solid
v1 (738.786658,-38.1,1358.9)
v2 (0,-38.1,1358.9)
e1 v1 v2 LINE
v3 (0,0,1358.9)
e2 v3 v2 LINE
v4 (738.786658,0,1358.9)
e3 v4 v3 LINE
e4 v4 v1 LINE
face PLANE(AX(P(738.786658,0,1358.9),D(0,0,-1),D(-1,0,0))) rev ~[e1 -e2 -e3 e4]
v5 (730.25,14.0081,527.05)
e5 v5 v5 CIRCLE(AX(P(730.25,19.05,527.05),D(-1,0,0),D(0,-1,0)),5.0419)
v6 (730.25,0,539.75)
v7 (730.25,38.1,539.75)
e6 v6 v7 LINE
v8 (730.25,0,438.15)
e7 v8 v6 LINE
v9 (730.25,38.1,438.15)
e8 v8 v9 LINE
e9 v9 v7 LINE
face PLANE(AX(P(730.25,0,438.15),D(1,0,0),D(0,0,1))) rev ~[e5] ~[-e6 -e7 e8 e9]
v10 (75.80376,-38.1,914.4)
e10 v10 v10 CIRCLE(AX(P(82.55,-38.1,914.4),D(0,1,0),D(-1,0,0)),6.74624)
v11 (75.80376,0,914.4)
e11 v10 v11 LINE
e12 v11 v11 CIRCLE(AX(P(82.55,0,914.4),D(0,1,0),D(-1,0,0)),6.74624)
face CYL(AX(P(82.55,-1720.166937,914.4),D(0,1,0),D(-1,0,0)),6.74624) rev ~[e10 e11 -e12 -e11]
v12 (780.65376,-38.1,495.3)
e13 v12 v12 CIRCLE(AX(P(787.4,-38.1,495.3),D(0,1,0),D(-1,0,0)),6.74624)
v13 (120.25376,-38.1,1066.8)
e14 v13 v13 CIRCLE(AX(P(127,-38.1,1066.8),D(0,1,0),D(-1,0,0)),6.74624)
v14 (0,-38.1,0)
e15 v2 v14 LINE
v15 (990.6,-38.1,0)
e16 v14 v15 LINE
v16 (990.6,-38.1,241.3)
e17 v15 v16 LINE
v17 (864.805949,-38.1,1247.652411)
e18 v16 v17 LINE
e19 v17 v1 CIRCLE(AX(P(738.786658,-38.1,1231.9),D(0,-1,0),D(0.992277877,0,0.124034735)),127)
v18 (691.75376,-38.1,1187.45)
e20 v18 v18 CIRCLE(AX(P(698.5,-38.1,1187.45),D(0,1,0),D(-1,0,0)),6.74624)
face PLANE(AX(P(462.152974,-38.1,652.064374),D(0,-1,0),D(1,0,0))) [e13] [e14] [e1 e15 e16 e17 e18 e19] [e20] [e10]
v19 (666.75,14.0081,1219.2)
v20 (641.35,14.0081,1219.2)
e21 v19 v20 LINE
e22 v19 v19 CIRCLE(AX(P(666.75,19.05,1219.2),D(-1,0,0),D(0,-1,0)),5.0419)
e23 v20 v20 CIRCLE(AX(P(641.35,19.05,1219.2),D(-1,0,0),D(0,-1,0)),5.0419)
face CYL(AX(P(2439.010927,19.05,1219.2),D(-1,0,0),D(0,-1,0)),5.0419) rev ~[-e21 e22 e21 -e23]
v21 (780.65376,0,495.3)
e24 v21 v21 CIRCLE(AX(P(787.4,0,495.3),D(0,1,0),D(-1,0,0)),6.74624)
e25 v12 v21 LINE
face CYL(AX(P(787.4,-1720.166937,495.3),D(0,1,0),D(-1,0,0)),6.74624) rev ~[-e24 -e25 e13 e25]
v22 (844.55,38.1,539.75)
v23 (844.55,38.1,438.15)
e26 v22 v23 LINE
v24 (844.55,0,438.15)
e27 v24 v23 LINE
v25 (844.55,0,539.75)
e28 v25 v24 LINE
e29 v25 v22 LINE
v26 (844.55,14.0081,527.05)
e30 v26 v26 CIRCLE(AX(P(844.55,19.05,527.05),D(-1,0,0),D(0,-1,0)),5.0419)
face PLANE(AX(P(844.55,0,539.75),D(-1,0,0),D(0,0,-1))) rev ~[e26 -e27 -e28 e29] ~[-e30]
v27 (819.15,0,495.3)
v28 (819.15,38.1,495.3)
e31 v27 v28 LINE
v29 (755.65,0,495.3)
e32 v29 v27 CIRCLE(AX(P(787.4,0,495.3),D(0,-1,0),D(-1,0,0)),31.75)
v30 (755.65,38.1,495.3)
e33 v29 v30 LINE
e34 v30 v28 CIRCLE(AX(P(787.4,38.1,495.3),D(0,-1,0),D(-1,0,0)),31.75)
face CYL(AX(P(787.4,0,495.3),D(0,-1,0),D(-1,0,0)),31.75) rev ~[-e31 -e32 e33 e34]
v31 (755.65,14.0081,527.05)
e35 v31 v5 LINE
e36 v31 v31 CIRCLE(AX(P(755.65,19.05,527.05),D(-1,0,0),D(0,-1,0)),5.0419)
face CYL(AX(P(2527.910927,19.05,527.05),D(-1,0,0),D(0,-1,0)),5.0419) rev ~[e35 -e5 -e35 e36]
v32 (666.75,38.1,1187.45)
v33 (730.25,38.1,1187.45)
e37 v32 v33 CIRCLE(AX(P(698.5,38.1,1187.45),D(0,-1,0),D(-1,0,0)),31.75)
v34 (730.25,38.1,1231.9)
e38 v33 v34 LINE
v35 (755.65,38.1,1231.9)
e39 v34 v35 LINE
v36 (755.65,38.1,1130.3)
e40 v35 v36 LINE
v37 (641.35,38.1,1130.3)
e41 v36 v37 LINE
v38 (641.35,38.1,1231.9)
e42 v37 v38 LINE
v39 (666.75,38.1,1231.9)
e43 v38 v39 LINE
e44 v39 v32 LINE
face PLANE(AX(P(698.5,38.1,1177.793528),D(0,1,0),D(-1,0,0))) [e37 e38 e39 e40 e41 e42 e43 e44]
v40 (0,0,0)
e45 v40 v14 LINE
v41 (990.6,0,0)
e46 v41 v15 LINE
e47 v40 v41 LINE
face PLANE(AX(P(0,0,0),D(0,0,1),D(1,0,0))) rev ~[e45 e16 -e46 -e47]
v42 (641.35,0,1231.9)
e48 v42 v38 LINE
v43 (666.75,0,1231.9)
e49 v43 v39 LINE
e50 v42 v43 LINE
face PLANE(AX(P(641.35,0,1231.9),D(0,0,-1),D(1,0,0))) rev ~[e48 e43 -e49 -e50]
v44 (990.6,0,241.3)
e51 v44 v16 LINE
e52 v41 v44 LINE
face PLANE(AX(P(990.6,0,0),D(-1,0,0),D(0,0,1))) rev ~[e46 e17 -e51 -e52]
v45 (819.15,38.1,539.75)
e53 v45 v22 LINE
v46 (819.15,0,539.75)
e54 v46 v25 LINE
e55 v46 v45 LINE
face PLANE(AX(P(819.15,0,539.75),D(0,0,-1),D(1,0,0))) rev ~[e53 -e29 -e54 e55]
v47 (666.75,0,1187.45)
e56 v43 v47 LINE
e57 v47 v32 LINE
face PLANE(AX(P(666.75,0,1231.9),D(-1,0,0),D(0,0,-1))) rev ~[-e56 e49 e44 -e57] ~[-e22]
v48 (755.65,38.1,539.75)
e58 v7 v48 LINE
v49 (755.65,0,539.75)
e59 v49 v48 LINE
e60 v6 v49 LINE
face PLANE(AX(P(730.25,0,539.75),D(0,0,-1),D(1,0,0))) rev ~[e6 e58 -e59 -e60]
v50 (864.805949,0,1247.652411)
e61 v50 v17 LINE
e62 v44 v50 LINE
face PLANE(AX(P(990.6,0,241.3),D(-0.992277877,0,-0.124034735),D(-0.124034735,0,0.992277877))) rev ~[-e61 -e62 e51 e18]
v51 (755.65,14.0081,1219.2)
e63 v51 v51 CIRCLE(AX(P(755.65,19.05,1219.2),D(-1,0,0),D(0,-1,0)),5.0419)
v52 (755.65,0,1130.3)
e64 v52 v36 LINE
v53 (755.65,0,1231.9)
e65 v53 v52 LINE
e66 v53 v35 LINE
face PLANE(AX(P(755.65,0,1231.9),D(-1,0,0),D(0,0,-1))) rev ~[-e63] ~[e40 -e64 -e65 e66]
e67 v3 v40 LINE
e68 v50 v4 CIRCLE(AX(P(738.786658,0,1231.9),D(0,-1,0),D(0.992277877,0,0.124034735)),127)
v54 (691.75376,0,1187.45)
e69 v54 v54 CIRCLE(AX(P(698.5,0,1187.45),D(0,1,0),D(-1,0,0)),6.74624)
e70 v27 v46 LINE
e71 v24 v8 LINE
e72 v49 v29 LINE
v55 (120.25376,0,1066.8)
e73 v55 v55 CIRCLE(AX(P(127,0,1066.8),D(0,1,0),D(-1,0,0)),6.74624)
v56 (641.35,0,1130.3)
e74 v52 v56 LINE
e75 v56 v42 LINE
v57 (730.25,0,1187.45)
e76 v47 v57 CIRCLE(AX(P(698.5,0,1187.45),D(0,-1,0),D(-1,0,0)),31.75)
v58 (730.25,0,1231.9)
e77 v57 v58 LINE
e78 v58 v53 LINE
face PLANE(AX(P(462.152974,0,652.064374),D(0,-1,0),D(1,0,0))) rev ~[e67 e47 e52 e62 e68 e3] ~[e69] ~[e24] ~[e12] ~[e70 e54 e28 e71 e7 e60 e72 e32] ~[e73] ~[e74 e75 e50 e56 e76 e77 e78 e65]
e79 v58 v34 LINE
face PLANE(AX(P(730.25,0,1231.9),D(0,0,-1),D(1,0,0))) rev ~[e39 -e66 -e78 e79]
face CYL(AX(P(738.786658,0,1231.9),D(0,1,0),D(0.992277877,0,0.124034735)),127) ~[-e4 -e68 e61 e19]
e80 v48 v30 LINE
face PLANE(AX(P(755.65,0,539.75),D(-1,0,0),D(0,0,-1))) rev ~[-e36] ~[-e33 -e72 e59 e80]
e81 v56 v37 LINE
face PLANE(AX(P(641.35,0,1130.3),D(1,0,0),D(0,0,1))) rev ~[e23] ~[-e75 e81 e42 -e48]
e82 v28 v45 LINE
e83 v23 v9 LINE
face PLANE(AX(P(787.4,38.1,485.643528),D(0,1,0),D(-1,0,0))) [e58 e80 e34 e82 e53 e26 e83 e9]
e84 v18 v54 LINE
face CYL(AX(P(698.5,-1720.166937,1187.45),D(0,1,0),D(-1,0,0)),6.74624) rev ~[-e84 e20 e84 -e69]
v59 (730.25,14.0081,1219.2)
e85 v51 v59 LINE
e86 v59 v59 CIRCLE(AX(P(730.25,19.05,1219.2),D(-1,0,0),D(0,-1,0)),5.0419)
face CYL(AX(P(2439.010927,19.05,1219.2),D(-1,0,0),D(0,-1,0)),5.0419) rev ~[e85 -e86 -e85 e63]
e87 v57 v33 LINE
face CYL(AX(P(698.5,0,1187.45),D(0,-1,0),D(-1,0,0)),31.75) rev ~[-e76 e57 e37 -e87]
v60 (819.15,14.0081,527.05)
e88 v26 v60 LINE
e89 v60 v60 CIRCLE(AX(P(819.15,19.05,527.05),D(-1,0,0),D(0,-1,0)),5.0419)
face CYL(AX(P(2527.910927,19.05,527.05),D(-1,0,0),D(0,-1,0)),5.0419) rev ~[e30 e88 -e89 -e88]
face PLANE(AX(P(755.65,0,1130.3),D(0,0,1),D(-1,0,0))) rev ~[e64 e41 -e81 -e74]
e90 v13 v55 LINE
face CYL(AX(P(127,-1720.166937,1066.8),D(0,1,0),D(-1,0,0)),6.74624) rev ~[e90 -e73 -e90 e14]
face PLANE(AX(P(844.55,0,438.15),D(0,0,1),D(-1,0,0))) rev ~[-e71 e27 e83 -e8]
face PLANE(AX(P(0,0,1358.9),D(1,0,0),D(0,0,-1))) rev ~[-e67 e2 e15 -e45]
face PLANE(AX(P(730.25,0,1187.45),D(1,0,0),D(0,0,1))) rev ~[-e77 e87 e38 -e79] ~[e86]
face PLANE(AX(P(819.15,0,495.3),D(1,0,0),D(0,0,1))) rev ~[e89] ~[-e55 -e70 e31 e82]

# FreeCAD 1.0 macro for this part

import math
import FreeCAD as App
import Part
import Sketcher
from FreeCAD import Vector
Q = App.Units.Quantity

doc = App.newDocument("Part")
body = doc.addObject("PartDesign::Body", "Body")

# Sketch on XZ plane
sketch1 = doc.addObject("Sketcher::SketchObject", "Sketch")
body.addObject(sketch1)
sketch1.AttachmentSupport = (doc.XZ_Plane, [""])
sketch1.MapMode = "FlatFace"
sketch1.addGeometry([
    Part.LineSegment(Vector(0, 1359, 0), Vector(0, 0, 0)),  # 0
    Part.LineSegment(Vector(0, 0, 0), Vector(991, 0, 0)),  # 1
    Part.LineSegment(Vector(991, 0, 0), Vector(991, 241, 0)),  # 2
    Part.LineSegment(Vector(991, 241, 0), Vector(865, 1248, 0)),  # 3
    Part.ArcOfCircle(Part.Circle(Vector(739, 1232, 0), Vector(0, 0, 1), 127), math.radians(7), math.radians(90)),  # 4
    Part.LineSegment(Vector(739, 1359, 0), Vector(0, 1359, 0)),  # 5
], False)
sketch1.addConstraint([
    Sketcher.Constraint("Coincident", 0, 2, 1, 1),
    Sketcher.Constraint("Coincident", 1, 2, 2, 1),
    Sketcher.Constraint("Coincident", 2, 2, 3, 1),
    Sketcher.Constraint("Tangent", 3, 2, 4, 1),
    Sketcher.Constraint("Tangent", 4, 2, 5, 1),
    Sketcher.Constraint("Coincident", 5, 2, 0, 1),
    Sketcher.Constraint("Vertical", 0),
    Sketcher.Constraint("Horizontal", 1),
    Sketcher.Constraint("Vertical", 2),
    Sketcher.Constraint("Horizontal", 5),
    Sketcher.Constraint("Coincident", 0, 2, -1, 1),
    Sketcher.Constraint("Radius", 4, Q("5 in")),
    Sketcher.Constraint("DistanceX", 1, 1, 1, 2, Q("39 in")),
    Sketcher.Constraint("DistanceY", 0, 2, 0, 1, Q("53.5 in")),
    Sketcher.Constraint("DistanceY", 2, 1, 2, 2, Q("9.5 in")),
    Sketcher.Constraint("DistanceX", 5, 2, 5, 1, 738.786658),
])
pad1 = doc.addObject("PartDesign::Pad", "Pad")
body.addObject(pad1)
pad1.Profile = sketch1
pad1.Length = Q("1.5 in")

# Sketch on XZ plane
sketch2 = doc.addObject("Sketcher::SketchObject", "Sketch001")
body.addObject(sketch2)
sketch2.AttachmentSupport = (doc.XZ_Plane, [""])
sketch2.MapMode = "FlatFace"
sketch2.AttachmentOffset = App.Placement(Vector(0, 0, 1.5 * 25.4), App.Rotation())
sketch2.addGeometry([
    Part.Circle(Vector(698, 1187, 0), Vector(0, 0, 1), 7),
    Part.Circle(Vector(83, 914, 0), Vector(0, 0, 1), 7),
    Part.Circle(Vector(127, 1067, 0), Vector(0, 0, 1), 7),
    Part.Circle(Vector(787, 495, 0), Vector(0, 0, 1), 7),
], False)
sketch2.addConstraint([
    Sketcher.Constraint("Equal", 0, 1),
    Sketcher.Constraint("Equal", 1, 2),
    Sketcher.Constraint("Equal", 2, 3),
    Sketcher.Constraint("DistanceY", -1, 1, 1, 3, Q("36 in")),
    Sketcher.Constraint("DistanceX", -1, 1, 2, 3, Q("5 in")),
    Sketcher.Constraint("DistanceY", -1, 1, 2, 3, Q("42 in")),
    Sketcher.Constraint("DistanceX", -1, 1, 3, 3, Q("31 in")),
    Sketcher.Constraint("Diameter", 0, Q("0.5312 in")),
    Sketcher.Constraint("DistanceX", -1, 1, 0, 3, Q("27.5 in")),
    Sketcher.Constraint("DistanceY", -1, 1, 3, 3, Q("19.5 in")),
    Sketcher.Constraint("DistanceY", -1, 1, 0, 3, Q("46.75 in")),
    Sketcher.Constraint("DistanceX", -1, 1, 1, 3, Q("3.25 in")),
])
doc.recompute()
hole = doc.addObject("PartDesign::Hole", "Hole")
body.addObject(hole)
hole.Profile = sketch2
hole.ThreadType = "None"
hole.Diameter = Q("0.5312 in")
hole.DepthType = "ThroughAll"

# Sketch on XZ plane
sketch3 = doc.addObject("Sketcher::SketchObject", "Sketch002")
body.addObject(sketch3)
sketch3.AttachmentSupport = (doc.XZ_Plane, [""])
sketch3.MapMode = "FlatFace"
sketch3.addGeometry([
    Part.ArcOfCircle(Part.Circle(Vector(698, 1187, 0), Vector(0, 0, 1), 32), math.radians(180), math.radians(360)),  # 0
    Part.LineSegment(Vector(730, 1187, 0), Vector(730, 1232, 0)),  # 1
    Part.LineSegment(Vector(730, 1232, 0), Vector(756, 1232, 0)),  # 2
    Part.LineSegment(Vector(756, 1232, 0), Vector(756, 1130, 0)),  # 3
    Part.LineSegment(Vector(756, 1130, 0), Vector(641, 1130, 0)),  # 4
    Part.LineSegment(Vector(641, 1130, 0), Vector(641, 1232, 0)),  # 5
    Part.LineSegment(Vector(641, 1232, 0), Vector(667, 1232, 0)),  # 6
    Part.LineSegment(Vector(667, 1232, 0), Vector(667, 1187, 0)),  # 7
], False)
sketch3.addConstraint([
    Sketcher.Constraint("Tangent", 0, 2, 1, 1),
    Sketcher.Constraint("Coincident", 1, 2, 2, 1),
    Sketcher.Constraint("Coincident", 2, 2, 3, 1),
    Sketcher.Constraint("Coincident", 3, 2, 4, 1),
    Sketcher.Constraint("Coincident", 4, 2, 5, 1),
    Sketcher.Constraint("Coincident", 5, 2, 6, 1),
    Sketcher.Constraint("Coincident", 6, 2, 7, 1),
    Sketcher.Constraint("Tangent", 7, 2, 0, 1),
    Sketcher.Constraint("Vertical", 1),
    Sketcher.Constraint("Horizontal", 2),
    Sketcher.Constraint("Vertical", 3),
    Sketcher.Constraint("Horizontal", 4),
    Sketcher.Constraint("Vertical", 5),
    Sketcher.Constraint("Horizontal", 6),
    Sketcher.Constraint("Vertical", 7),
    Sketcher.Constraint("Horizontal", 2, 2, 5, 2),
    Sketcher.Constraint("Equal", 2, 6),
    Sketcher.Constraint("DistanceX", 2, 1, 2, 2, Q("1 in")),
    Sketcher.Constraint("DistanceY", 3, 2, 3, 1, Q("4 in")),
    Sketcher.Constraint("Radius", 0, Q("1.25 in")),
    Sketcher.Constraint("DistanceY", 1, 1, 1, 2, Q("1.75 in")),
    Sketcher.Constraint("DistanceX", -1, 1, 0, 3, Q("27.5 in")),
    Sketcher.Constraint("DistanceY", -1, 1, 1, 2, Q("48.5 in")),
])
pad2 = doc.addObject("PartDesign::Pad", "Pad001")
body.addObject(pad2)
pad2.Profile = sketch3
pad2.Length = Q("1.5 in")
pad2.Reversed = True

# Sketch on XZ plane
sketch4 = doc.addObject("Sketcher::SketchObject", "Sketch003")
body.addObject(sketch4)
sketch4.AttachmentSupport = (doc.XZ_Plane, [""])
sketch4.MapMode = "FlatFace"
sketch4.addGeometry([
    Part.ArcOfCircle(Part.Circle(Vector(787, 495, 0), Vector(0, 0, 1), 32), math.radians(180), math.radians(360)),  # 0
    Part.LineSegment(Vector(819, 495, 0), Vector(819, 540, 0)),  # 1
    Part.LineSegment(Vector(819, 540, 0), Vector(845, 540, 0)),  # 2
    Part.LineSegment(Vector(845, 540, 0), Vector(845, 438, 0)),  # 3
    Part.LineSegment(Vector(845, 438, 0), Vector(730, 438, 0)),  # 4
    Part.LineSegment(Vector(730, 438, 0), Vector(730, 540, 0)),  # 5
    Part.LineSegment(Vector(730, 540, 0), Vector(756, 540, 0)),  # 6
    Part.LineSegment(Vector(756, 540, 0), Vector(756, 495, 0)),  # 7
], False)
sketch4.addConstraint([
    Sketcher.Constraint("Tangent", 0, 2, 1, 1),
    Sketcher.Constraint("Coincident", 1, 2, 2, 1),
    Sketcher.Constraint("Coincident", 2, 2, 3, 1),
    Sketcher.Constraint("Coincident", 3, 2, 4, 1),
    Sketcher.Constraint("Coincident", 4, 2, 5, 1),
    Sketcher.Constraint("Coincident", 5, 2, 6, 1),
    Sketcher.Constraint("Coincident", 6, 2, 7, 1),
    Sketcher.Constraint("Tangent", 7, 2, 0, 1),
    Sketcher.Constraint("Vertical", 1),
    Sketcher.Constraint("Horizontal", 2),
    Sketcher.Constraint("Vertical", 3),
    Sketcher.Constraint("Horizontal", 4),
    Sketcher.Constraint("Vertical", 5),
    Sketcher.Constraint("Horizontal", 6),
    Sketcher.Constraint("Vertical", 7),
    Sketcher.Constraint("Horizontal", 2, 2, 5, 2),
    Sketcher.Constraint("Equal", 2, 6),
    Sketcher.Constraint("DistanceX", 2, 1, 2, 2, Q("1 in")),
    Sketcher.Constraint("DistanceY", 3, 2, 3, 1, Q("4 in")),
    Sketcher.Constraint("Radius", 0, Q("1.25 in")),
    Sketcher.Constraint("DistanceX", -1, 1, 0, 3, Q("31 in")),
    Sketcher.Constraint("DistanceY", 1, 1, 1, 2, Q("1.75 in")),
    Sketcher.Constraint("DistanceY", -1, 1, 0, 3, Q("19.5 in")),
])
pad3 = doc.addObject("PartDesign::Pad", "Pad002")
body.addObject(pad3)
pad3.Profile = sketch4
pad3.Length = Q("1.5 in")
pad3.Reversed = True

# Sketch on YZ plane
sketch5 = doc.addObject("Sketcher::SketchObject", "Sketch004")
body.addObject(sketch5)
sketch5.AttachmentSupport = (doc.YZ_Plane, [""])
sketch5.MapMode = "FlatFace"
sketch5.AttachmentOffset = App.Placement(Vector(0, 0, 29.75 * 25.4), App.Rotation())
sketch5.addGeometry(Part.Circle(Vector(19, 1219, 0), Vector(0, 0, 1), 5), False)
sketch5.addConstraint([
    Sketcher.Constraint("Diameter", 0, Q("0.397 in")),
    Sketcher.Constraint("DistanceY", -1, 1, 0, 3, Q("48 in")),
    Sketcher.Constraint("DistanceX", -1, 1, 0, 3, Q("0.75 in")),
])
doc.recompute()
hole2 = doc.addObject("PartDesign::Hole", "Hole001")
body.addObject(hole2)
hole2.Profile = sketch5
hole2.ThreadType = "None"
hole2.Diameter = Q("0.397 in")
hole2.DepthType = "ThroughAll"

# Sketch on YZ plane
sketch6 = doc.addObject("Sketcher::SketchObject", "Sketch005")
body.addObject(sketch6)
sketch6.AttachmentSupport = (doc.YZ_Plane, [""])
sketch6.MapMode = "FlatFace"
sketch6.AttachmentOffset = App.Placement(Vector(0, 0, 33.25 * 25.4), App.Rotation())
sketch6.addGeometry(Part.Circle(Vector(19, 527, 0), Vector(0, 0, 1), 5), False)
sketch6.addConstraint([
    Sketcher.Constraint("Diameter", 0, Q("0.397 in")),
    Sketcher.Constraint("DistanceX", -1, 1, 0, 3, Q("0.75 in")),
    Sketcher.Constraint("DistanceY", -1, 1, 0, 3, Q("20.75 in")),
])
doc.recompute()
hole3 = doc.addObject("PartDesign::Hole", "Hole002")
body.addObject(hole3)
hole3.Profile = sketch6
hole3.ThreadType = "None"
hole3.Diameter = Q("0.397 in")
hole3.DepthType = "ThroughAll"

doc.recompute()
